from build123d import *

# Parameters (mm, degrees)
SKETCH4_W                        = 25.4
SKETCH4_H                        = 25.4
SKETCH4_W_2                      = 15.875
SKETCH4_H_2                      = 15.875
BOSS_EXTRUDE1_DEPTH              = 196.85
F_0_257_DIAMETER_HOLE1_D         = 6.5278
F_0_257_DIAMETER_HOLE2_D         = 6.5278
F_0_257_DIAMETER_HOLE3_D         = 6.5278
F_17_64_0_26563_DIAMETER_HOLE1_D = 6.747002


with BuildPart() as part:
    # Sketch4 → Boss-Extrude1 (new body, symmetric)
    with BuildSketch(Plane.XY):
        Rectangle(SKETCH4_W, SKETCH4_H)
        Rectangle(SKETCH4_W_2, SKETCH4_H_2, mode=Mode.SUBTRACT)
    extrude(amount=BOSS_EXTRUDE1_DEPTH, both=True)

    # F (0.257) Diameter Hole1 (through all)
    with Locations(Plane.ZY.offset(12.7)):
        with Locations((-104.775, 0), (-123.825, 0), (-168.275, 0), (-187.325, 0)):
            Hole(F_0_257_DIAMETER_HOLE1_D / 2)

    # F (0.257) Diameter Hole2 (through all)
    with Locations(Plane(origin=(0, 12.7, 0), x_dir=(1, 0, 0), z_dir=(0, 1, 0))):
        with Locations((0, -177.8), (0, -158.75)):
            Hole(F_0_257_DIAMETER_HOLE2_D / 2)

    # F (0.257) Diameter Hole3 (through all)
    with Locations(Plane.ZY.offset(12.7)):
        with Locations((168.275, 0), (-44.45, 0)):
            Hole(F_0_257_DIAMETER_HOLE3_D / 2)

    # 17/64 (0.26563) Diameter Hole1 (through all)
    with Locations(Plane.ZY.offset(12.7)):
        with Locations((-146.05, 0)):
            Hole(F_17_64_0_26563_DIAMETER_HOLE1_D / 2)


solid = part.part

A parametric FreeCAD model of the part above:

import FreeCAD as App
import Part
import Sketcher
from FreeCAD import Vector
Q = App.Units.Quantity


def add_polygon(sketch, points):
    """Adds a closed chain of lines whose ends are joined by coincident constraints."""
    first, n = sketch.GeometryCount, len(points)
    for a, b in zip(points, points[1:] + points[:1]):
        sketch.addGeometry(Part.LineSegment(App.Vector(*a, 0), App.Vector(*b, 0)), False)
    for i in range(n):
        sketch.addConstraint(Sketcher.Constraint("Coincident", first + i, 2, first + (i + 1) % n, 1))

doc = App.newDocument("Part")
params = doc.addObject("Spreadsheet::Sheet", "Params")
for row, (alias, value) in enumerate([
    ("sketch1_width", "1 in"),
    ("sketch1_width2", "0.625 in"),
    ("pad1_length", "15.5 in"),
    ("sketch2_diameter", "0.257 in"),
    ("hole_diameter", "0.257 in"),
    ("sketch3_diameter", "0.257 in"),
    ("hole2_diameter", "0.257 in"),
    ("sketch4_diameter", "0.257 in"),
    ("hole3_diameter", "0.257 in"),
    ("hole4_diameter", "6.747002 mm"),
], start=1):
    params.set(f"A{row}", alias)
    params.set(f"B{row}", "=" + value)
    params.setAlias(f"B{row}", alias)

body = doc.addObject("PartDesign::Body", "Body")

# Sketch on XY plane
sketch1 = body.newObject("Sketcher::SketchObject", "Sketch")
sketch1.AttachmentSupport = (doc.getObject("XY_Plane"), [""])
sketch1.MapMode = "FlatFace"
add_polygon(sketch1, [(-13, 13), (-13, -13), (13, -13), (13, 13)])  # lines 0-3
add_polygon(sketch1, [(8, -8), (-8, -8), (-8, 8), (8, 8)])  # lines 4-7
sketch1.addConstraint(Sketcher.Constraint("Vertical", 0))
sketch1.addConstraint(Sketcher.Constraint("Horizontal", 1))
sketch1.addConstraint(Sketcher.Constraint("Vertical", 2))
sketch1.addConstraint(Sketcher.Constraint("Horizontal", 3))
sketch1.addConstraint(Sketcher.Constraint("Horizontal", 4))
sketch1.addConstraint(Sketcher.Constraint("Vertical", 5))
sketch1.addConstraint(Sketcher.Constraint("Horizontal", 6))
sketch1.addConstraint(Sketcher.Constraint("Vertical", 7))
sketch1.addConstraint(Sketcher.Constraint("Symmetric", 0, 2, 2, 2, -1, 1))
sketch1.addConstraint(Sketcher.Constraint("Symmetric", 4, 2, 6, 2, -1, 1))
sketch1.addConstraint(Sketcher.Constraint("Equal", 3, 0))
sketch1.addConstraint(Sketcher.Constraint("Equal", 6, 5))
sketch1.addConstraint(Sketcher.Constraint("DistanceX", 1, 1, 1, 2, Q("1 in")))
sketch1.addConstraint(Sketcher.Constraint("DistanceX", 4, 2, 4, 1, Q("0.625 in")))
sketch1.setExpression("Constraints[20]", "Params.sketch1_width")
sketch1.setExpression("Constraints[21]", "Params.sketch1_width2")
pad1 = body.newObject("PartDesign::Pad", "Pad")
pad1.Profile = sketch1
pad1.setExpression("Length", "Params.pad1_length")
pad1.Midplane = True

# Sketch on YZ plane
sketch2 = body.newObject("Sketcher::SketchObject", "Sketch001")
sketch2.AttachmentSupport = (doc.getObject("YZ_Plane"), [""])
sketch2.MapMode = "FlatFace"
sketch2.AttachmentOffset = App.Placement(Vector(0, 0, -0.5 * 25.4), App.Rotation())
sketch2.addGeometry(Part.Circle(Vector(0, -104.8, 0), Vector(0, 0, 1), 3.3), False)
sketch2.addGeometry(Part.Circle(Vector(0, -123.8, 0), Vector(0, 0, 1), 3.3), False)
sketch2.addGeometry(Part.Circle(Vector(0, -168.3, 0), Vector(0, 0, 1), 3.3), False)
sketch2.addGeometry(Part.Circle(Vector(0, -187.3, 0), Vector(0, 0, 1), 3.3), False)
sketch2.addConstraint(Sketcher.Constraint("Equal", 0, 1))
sketch2.addConstraint(Sketcher.Constraint("Equal", 1, 2))
sketch2.addConstraint(Sketcher.Constraint("Equal", 2, 3))
sketch2.addConstraint(Sketcher.Constraint("PointOnObject", 0, 3, -2))
sketch2.addConstraint(Sketcher.Constraint("PointOnObject", 1, 3, -2))
sketch2.addConstraint(Sketcher.Constraint("PointOnObject", 2, 3, -2))
sketch2.addConstraint(Sketcher.Constraint("PointOnObject", 3, 3, -2))
sketch2.addConstraint(Sketcher.Constraint("Diameter", 0, Q("0.257 in")))
sketch2.addConstraint(Sketcher.Constraint("DistanceY", 2, 3, 0, 3, Q("2.5 in")))
sketch2.addConstraint(Sketcher.Constraint("DistanceY", 3, 3, 1, 3, Q("2.5 in")))
sketch2.addConstraint(Sketcher.Constraint("DistanceY", 1, 3, 0, 3, Q("0.75 in")))
sketch2.addConstraint(Sketcher.Constraint("DistanceY", 0, 3, -1, 1, Q("4.125 in")))
sketch2.setExpression("Constraints[7]", "Params.sketch2_diameter")
doc.recompute()
hole = body.newObject("PartDesign::Hole", "Hole")
hole.Profile = sketch2
hole.ThreadType = "None"
hole.setExpression("Diameter", "Params.hole_diameter")
hole.DepthType = "ThroughAll"
hole.Reversed = True

# Sketch on XZ plane
sketch3 = body.newObject("Sketcher::SketchObject", "Sketch002")
sketch3.AttachmentSupport = (doc.getObject("XZ_Plane"), [""])
sketch3.MapMode = "FlatFace"
sketch3.AttachmentOffset = App.Placement(Vector(0, 0, -0.5 * 25.4), App.Rotation())
sketch3.addGeometry(Part.Circle(Vector(0, 177.8, 0), Vector(0, 0, 1), 3.3), False)
sketch3.addGeometry(Part.Circle(Vector(0, 158.8, 0), Vector(0, 0, 1), 3.3), False)
sketch3.addConstraint(Sketcher.Constraint("Equal", 0, 1))
sketch3.addConstraint(Sketcher.Constraint("PointOnObject", 0, 3, -2))
sketch3.addConstraint(Sketcher.Constraint("PointOnObject", 1, 3, -2))
sketch3.addConstraint(Sketcher.Constraint("Diameter", 0, Q("0.257 in")))
sketch3.addConstraint(Sketcher.Constraint("DistanceY", -1, 1, 0, 3, Q("7 in")))
sketch3.addConstraint(Sketcher.Constraint("DistanceY", -1, 1, 1, 3, Q("6.25 in")))
sketch3.setExpression("Constraints[3]", "Params.sketch3_diameter")
doc.recompute()
hole2 = body.newObject("PartDesign::Hole", "Hole001")
hole2.Profile = sketch3
hole2.ThreadType = "None"
hole2.setExpression("Diameter", "Params.hole2_diameter")
hole2.DepthType = "ThroughAll"
hole2.Reversed = True

# Sketch on YZ plane
sketch4 = body.newObject("Sketcher::SketchObject", "Sketch003")
sketch4.AttachmentSupport = (doc.getObject("YZ_Plane"), [""])
sketch4.MapMode = "FlatFace"
sketch4.AttachmentOffset = App.Placement(Vector(0, 0, -0.5 * 25.4), App.Rotation())
sketch4.addGeometry(Part.Circle(Vector(0, 168.3, 0), Vector(0, 0, 1), 3.3), False)
sketch4.addGeometry(Part.Circle(Vector(0, -44.5, 0), Vector(0, 0, 1), 3.3), False)
sketch4.addConstraint(Sketcher.Constraint("Equal", 0, 1))
sketch4.addConstraint(Sketcher.Constraint("PointOnObject", 0, 3, -2))
sketch4.addConstraint(Sketcher.Constraint("PointOnObject", 1, 3, -2))
sketch4.addConstraint(Sketcher.Constraint("Diameter", 0, Q("0.257 in")))
sketch4.addConstraint(Sketcher.Constraint("DistanceY", 1, 3, -1, 1, Q("1.75 in")))
sketch4.addConstraint(Sketcher.Constraint("DistanceY", -1, 1, 0, 3, Q("6.625 in")))
sketch4.setExpression("Constraints[3]", "Params.sketch4_diameter")
doc.recompute()
hole3 = body.newObject("PartDesign::Hole", "Hole002")
hole3.Profile = sketch4
hole3.ThreadType = "None"
hole3.setExpression("Diameter", "Params.hole3_diameter")
hole3.DepthType = "ThroughAll"
hole3.Reversed = True

# Sketch on YZ plane
sketch5 = body.newObject("Sketcher::SketchObject", "Sketch004")
sketch5.AttachmentSupport = (doc.getObject("YZ_Plane"), [""])
sketch5.MapMode = "FlatFace"
sketch5.AttachmentOffset = App.Placement(Vector(0, 0, -0.5 * 25.4), App.Rotation())
sketch5.addGeometry(Part.Circle(Vector(0, -146.1, 0), Vector(0, 0, 1), 3.4), False)
sketch5.addConstraint(Sketcher.Constraint("PointOnObject", 0, 3, -2))
sketch5.addConstraint(Sketcher.Constraint("DistanceY", 0, 3, -1, 1, Q("5.75 in")))
sketch5.addConstraint(Sketcher.Constraint("Diameter", 0, 6.747002))
doc.recompute()
hole4 = body.newObject("PartDesign::Hole", "Hole003")
hole4.Profile = sketch5
hole4.ThreadType = "None"
hole4.setExpression("Diameter", "Params.hole4_diameter")
hole4.DepthType = "ThroughAll"
hole4.Reversed = True

doc.recompute()
